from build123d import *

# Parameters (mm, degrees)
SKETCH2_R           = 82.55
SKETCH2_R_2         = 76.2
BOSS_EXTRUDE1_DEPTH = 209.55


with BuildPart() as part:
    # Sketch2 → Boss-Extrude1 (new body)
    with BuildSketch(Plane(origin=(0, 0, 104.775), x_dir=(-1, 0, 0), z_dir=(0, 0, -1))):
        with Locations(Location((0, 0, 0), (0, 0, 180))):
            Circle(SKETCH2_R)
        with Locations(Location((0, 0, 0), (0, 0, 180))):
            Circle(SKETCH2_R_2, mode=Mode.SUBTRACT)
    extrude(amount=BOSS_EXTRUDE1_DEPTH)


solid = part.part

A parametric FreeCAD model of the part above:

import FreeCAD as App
import Part
import Sketcher
Q = App.Units.Quantity

doc = App.newDocument("Part")
body = doc.addObject("PartDesign::Body", "Body")

sketch1 = doc.addObject("Sketcher::SketchObject", "Sketch")
body.addObject(sketch1)
sketch1.AttachmentSupport = (doc.XY_Plane, [""])
sketch1.MapMode = "FlatFace"
sketch1.AttachmentOffset = App.Placement(App.Vector(0, 0, 4.125 * 25.4), App.Rotation())
sketch1.addGeometry(Part.Circle(App.Vector(0, 0, 0), App.Vector(0, 0, 1), 83), False)
sketch1.addGeometry(Part.Circle(App.Vector(0, 0, 0), App.Vector(0, 0, 1), 76), False)
sketch1.addConstraint(Sketcher.Constraint("Coincident", 0, 3, -1, 1))
sketch1.addConstraint(Sketcher.Constraint("Coincident", 1, 3, -1, 1))
sketch1.addConstraint(Sketcher.Constraint("Diameter", 1, Q("6 in")))
sketch1.addConstraint(Sketcher.Constraint("Diameter", 0, Q("6.5 in")))
pad1 = doc.addObject("PartDesign::Pad", "Pad")
body.addObject(pad1)
pad1.Profile = sketch1
pad1.Length = Q("8.25 in")
pad1.Reversed = True

doc.recompute()
